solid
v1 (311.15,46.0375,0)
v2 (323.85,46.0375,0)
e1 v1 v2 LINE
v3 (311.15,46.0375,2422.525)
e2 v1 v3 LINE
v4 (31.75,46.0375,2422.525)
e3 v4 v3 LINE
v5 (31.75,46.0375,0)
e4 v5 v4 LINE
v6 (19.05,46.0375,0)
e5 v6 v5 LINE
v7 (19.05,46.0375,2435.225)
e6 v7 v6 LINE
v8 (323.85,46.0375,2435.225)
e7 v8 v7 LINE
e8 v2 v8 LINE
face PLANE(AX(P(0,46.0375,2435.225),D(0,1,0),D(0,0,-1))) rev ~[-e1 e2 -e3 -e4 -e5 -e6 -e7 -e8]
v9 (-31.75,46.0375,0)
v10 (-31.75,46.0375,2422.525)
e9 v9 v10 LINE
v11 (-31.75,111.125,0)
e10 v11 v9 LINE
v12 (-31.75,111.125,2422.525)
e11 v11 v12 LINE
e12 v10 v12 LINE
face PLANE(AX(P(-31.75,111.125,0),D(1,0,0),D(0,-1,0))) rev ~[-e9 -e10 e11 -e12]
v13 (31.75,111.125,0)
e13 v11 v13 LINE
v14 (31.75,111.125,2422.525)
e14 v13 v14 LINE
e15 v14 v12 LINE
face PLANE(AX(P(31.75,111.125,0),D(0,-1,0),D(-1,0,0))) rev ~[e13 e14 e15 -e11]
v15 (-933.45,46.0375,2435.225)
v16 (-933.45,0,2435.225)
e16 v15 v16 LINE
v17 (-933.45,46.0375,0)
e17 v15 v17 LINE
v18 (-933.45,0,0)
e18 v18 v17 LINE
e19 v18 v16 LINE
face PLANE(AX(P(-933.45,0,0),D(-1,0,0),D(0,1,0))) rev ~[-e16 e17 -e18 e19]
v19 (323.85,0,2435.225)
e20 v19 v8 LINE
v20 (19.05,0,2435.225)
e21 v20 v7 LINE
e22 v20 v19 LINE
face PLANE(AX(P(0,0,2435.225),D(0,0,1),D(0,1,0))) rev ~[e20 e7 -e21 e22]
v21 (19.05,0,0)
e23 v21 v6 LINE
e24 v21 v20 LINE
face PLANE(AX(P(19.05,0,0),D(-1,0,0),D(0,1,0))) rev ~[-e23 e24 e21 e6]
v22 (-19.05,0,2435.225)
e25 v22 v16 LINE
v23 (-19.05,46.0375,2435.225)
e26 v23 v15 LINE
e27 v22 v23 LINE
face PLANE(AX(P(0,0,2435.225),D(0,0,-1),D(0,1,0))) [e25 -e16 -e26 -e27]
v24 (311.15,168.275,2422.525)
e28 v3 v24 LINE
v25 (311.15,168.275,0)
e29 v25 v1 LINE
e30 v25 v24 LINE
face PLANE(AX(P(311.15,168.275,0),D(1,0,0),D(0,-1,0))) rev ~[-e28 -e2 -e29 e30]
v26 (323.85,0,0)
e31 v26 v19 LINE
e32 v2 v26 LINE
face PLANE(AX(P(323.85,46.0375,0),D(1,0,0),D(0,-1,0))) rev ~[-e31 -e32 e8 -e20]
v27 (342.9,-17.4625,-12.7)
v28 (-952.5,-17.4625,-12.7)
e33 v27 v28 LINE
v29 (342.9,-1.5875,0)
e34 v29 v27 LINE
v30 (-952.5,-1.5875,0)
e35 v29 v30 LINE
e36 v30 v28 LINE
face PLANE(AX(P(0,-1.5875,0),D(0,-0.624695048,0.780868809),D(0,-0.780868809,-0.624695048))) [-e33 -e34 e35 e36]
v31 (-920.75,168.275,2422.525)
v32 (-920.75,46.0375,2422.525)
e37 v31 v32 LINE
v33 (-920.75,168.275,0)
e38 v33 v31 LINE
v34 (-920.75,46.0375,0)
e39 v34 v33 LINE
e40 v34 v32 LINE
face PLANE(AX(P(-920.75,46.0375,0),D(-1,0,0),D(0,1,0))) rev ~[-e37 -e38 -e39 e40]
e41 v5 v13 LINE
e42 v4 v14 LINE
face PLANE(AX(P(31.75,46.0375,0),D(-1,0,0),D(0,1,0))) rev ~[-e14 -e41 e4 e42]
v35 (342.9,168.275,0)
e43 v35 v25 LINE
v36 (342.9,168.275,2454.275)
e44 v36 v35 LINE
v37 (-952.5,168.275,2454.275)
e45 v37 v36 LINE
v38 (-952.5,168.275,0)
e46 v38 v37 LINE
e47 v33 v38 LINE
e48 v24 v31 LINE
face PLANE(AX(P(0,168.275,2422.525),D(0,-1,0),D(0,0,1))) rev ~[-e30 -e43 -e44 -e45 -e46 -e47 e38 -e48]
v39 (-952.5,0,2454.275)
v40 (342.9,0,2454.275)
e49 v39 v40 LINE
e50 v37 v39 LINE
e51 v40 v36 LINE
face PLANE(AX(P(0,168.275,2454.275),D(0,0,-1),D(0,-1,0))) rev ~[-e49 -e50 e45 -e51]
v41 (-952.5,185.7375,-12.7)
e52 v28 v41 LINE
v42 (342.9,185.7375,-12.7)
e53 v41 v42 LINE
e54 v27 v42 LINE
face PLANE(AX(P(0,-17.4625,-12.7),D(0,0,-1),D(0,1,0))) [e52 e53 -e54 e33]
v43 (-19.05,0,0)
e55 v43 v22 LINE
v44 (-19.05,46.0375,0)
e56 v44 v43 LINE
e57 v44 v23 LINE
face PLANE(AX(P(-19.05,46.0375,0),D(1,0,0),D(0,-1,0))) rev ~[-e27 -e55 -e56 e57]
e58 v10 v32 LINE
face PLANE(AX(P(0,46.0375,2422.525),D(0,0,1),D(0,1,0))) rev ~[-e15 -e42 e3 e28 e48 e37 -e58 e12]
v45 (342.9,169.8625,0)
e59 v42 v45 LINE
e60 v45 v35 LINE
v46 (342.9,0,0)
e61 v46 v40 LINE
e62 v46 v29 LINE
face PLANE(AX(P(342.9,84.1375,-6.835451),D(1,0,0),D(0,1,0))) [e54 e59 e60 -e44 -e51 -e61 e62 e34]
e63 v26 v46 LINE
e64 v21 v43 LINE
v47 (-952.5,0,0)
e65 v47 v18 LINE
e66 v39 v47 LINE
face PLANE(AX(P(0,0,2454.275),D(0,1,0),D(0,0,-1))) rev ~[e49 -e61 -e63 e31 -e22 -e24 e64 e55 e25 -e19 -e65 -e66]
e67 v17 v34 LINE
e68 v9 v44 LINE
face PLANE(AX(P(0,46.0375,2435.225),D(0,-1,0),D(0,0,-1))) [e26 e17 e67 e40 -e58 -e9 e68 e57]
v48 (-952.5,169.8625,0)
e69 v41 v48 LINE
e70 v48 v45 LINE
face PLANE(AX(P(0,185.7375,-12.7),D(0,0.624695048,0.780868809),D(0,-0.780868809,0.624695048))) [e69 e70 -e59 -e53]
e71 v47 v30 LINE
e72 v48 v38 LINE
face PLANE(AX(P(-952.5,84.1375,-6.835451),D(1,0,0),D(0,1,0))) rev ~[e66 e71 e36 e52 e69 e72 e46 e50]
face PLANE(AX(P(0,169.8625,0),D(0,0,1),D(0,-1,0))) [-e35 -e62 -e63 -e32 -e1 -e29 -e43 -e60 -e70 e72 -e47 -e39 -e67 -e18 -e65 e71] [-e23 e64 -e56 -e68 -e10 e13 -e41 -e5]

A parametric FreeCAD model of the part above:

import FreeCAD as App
import Part
import Sketcher

V = App.Vector
Q = App.Units.Quantity

doc = App.newDocument("Part")
params = doc.addObject("Spreadsheet::Sheet", "Params")
for row, (alias, value) in enumerate([
    ("sketch1_width", "0.5 in"),
    ("sketch1_width2", "0.75 in"),
    ("sketch1_height", "6.625 in"),
    ("sketch1_height2", "1.8125 in"),
    ("pad1_length", "96.625 in"),
    ("sketch2_width", "0.5 in"),
    ("sketch2_width2", "1.5 in"),
    ("sketch2_height", "1.8125 in"),
    ("sketch2_height2", "2.5625 in"),
    ("pad2_length", "96.625 in"),
    ("sketch3_width", "0.5 in"),
    ("sketch3_width2", "0.75 in"),
    ("sketch3_height", "1.8125 in"),
    ("sketch3_height2", "6.625 in"),
    ("pad3_length", "96.625 in"),
    ("sketch4_width", "36.25 in"),
    ("pad4_length", "168.276 mm"),
    ("sketch5_height", "0.5 in"),
    ("sketch5_height2", "1.25 in"),
    ("sketch5_width", "6.625 in"),
    ("sketch5_width2", "1.8125 in"),
    ("pad5_length", "37.5 in"),
    ("pad5_length2", "13.5 in"),
    ("sketch6_width", "8 in"),
    ("sketch6_width2", "6.75 in"),
    ("pad6_length", "13.5 in"),
    ("pad6_length2", "37.5 in"),
], start=1):
    params.set(f"A{row}", alias)
    params.set(f"B{row}", "=" + value)
    params.setAlias(f"B{row}", alias)

body = doc.addObject("PartDesign::Body", "Body")

# Sketch on XY plane
sketch1 = doc.addObject("Sketcher::SketchObject", "Sketch")
body.addObject(sketch1)
sketch1.AttachmentSupport = (doc.XY_Plane, [""])
sketch1.MapMode = "FlatFace"
sketch1.addGeometry([
    Part.LineSegment(V(-952, 168, 0), V(-952, 0, 0)),  # 0
    Part.LineSegment(V(-952, 0, 0), V(-933, 0, 0)),  # 1
    Part.LineSegment(V(-933, 0, 0), V(-933, 46, 0)),  # 2
    Part.LineSegment(V(-933, 46, 0), V(-921, 46, 0)),  # 3
    Part.LineSegment(V(-921, 46, 0), V(-921, 168, 0)),  # 4
    Part.LineSegment(V(-921, 168, 0), V(-952, 168, 0)),  # 5
], False)
sketch1.addConstraint([
    Sketcher.Constraint("Coincident", 0, 2, 1, 1),
    Sketcher.Constraint("Coincident", 1, 2, 2, 1),
    Sketcher.Constraint("Coincident", 2, 2, 3, 1),
    Sketcher.Constraint("Coincident", 3, 2, 4, 1),
    Sketcher.Constraint("Coincident", 4, 2, 5, 1),
    Sketcher.Constraint("Coincident", 5, 2, 0, 1),
    Sketcher.Constraint("Vertical", 0),
    Sketcher.Constraint("Horizontal", 1),
    Sketcher.Constraint("Vertical", 2),
    Sketcher.Constraint("Horizontal", 3),
    Sketcher.Constraint("Vertical", 4),
    Sketcher.Constraint("Horizontal", 5),
    Sketcher.Constraint("PointOnObject", 0, 2, -1),
    Sketcher.Constraint("DistanceX", 3, 1, 3, 2, Q("0.5 in")),
    Sketcher.Constraint("DistanceX", 1, 1, 1, 2, Q("0.75 in")),
    Sketcher.Constraint("DistanceX", 0, 2, -1, 1, Q("37.5 in")),
    Sketcher.Constraint("DistanceY", 0, 2, 0, 1, Q("6.625 in")),
    Sketcher.Constraint("DistanceY", 2, 1, 2, 2, Q("1.8125 in")),
])
sketch1.setExpression("Constraints[13]", "Params.sketch1_width")
sketch1.setExpression("Constraints[14]", "Params.sketch1_width2")
sketch1.setExpression("Constraints[16]", "Params.sketch1_height")
sketch1.setExpression("Constraints[17]", "Params.sketch1_height2")
pad1 = doc.addObject("PartDesign::Pad", "Pad")
body.addObject(pad1)
pad1.Profile = sketch1
pad1.setExpression("Length", "Params.pad1_length")
body2 = doc.addObject("PartDesign::Body", "Body001")

# Sketch on XY plane
sketch2 = doc.addObject("Sketcher::SketchObject", "Sketch001")
body2.addObject(sketch2)
sketch2.AttachmentSupport = (doc.getObject("XY_Plane001"), [""])
sketch2.MapMode = "FlatFace"
sketch2.addGeometry([
    Part.LineSegment(V(-32, 46, 0), V(-19, 46, 0)),  # 0
    Part.LineSegment(V(-19, 46, 0), V(-19, 0, 0)),  # 1
    Part.LineSegment(V(-19, 0, 0), V(19, 0, 0)),  # 2
    Part.LineSegment(V(19, 0, 0), V(19, 46, 0)),  # 3
    Part.LineSegment(V(19, 46, 0), V(32, 46, 0)),  # 4
    Part.LineSegment(V(32, 46, 0), V(32, 111, 0)),  # 5
    Part.LineSegment(V(32, 111, 0), V(-32, 111, 0)),  # 6
    Part.LineSegment(V(-32, 111, 0), V(-32, 46, 0)),  # 7
], False)
sketch2.addConstraint([
    Sketcher.Constraint("Coincident", 0, 2, 1, 1),
    Sketcher.Constraint("Coincident", 1, 2, 2, 1),
    Sketcher.Constraint("Coincident", 2, 2, 3, 1),
    Sketcher.Constraint("Coincident", 3, 2, 4, 1),
    Sketcher.Constraint("Coincident", 4, 2, 5, 1),
    Sketcher.Constraint("Coincident", 5, 2, 6, 1),
    Sketcher.Constraint("Coincident", 6, 2, 7, 1),
    Sketcher.Constraint("Coincident", 7, 2, 0, 1),
    Sketcher.Constraint("Horizontal", 0),
    Sketcher.Constraint("Vertical", 1),
    Sketcher.Constraint("Horizontal", 2),
    Sketcher.Constraint("Vertical", 3),
    Sketcher.Constraint("Horizontal", 4),
    Sketcher.Constraint("Vertical", 5),
    Sketcher.Constraint("Horizontal", 6),
    Sketcher.Constraint("Vertical", 7),
    Sketcher.Constraint("Symmetric", 1, 2, 2, 2, -1, 1),
    Sketcher.Constraint("Symmetric", 4, 2, 7, 2, -2),
    Sketcher.Constraint("DistanceX", 0, 1, 0, 2, Q("0.5 in")),
    Sketcher.Constraint("DistanceX", 2, 1, 2, 2, Q("1.5 in")),
    Sketcher.Constraint("DistanceY", 1, 2, 1, 1, Q("1.8125 in")),
    Sketcher.Constraint("DistanceY", 5, 1, 5, 2, Q("2.5625 in")),
])
sketch2.setExpression("Constraints[18]", "Params.sketch2_width")
sketch2.setExpression("Constraints[19]", "Params.sketch2_width2")
sketch2.setExpression("Constraints[20]", "Params.sketch2_height")
sketch2.setExpression("Constraints[21]", "Params.sketch2_height2")
pad2 = doc.addObject("PartDesign::Pad", "Pad001")
body2.addObject(pad2)
pad2.Profile = sketch2
pad2.setExpression("Length", "Params.pad2_length")
body3 = doc.addObject("PartDesign::Body", "Body002")

# Sketch on XY plane
sketch3 = doc.addObject("Sketcher::SketchObject", "Sketch002")
body3.addObject(sketch3)
sketch3.AttachmentSupport = (doc.getObject("XY_Plane002"), [""])
sketch3.MapMode = "FlatFace"
sketch3.addGeometry([
    Part.LineSegment(V(311, 46, 0), V(324, 46, 0)),  # 0
    Part.LineSegment(V(324, 46, 0), V(324, 0, 0)),  # 1
    Part.LineSegment(V(324, 0, 0), V(343, 0, 0)),  # 2
    Part.LineSegment(V(343, 0, 0), V(343, 168, 0)),  # 3
    Part.LineSegment(V(343, 168, 0), V(311, 168, 0)),  # 4
    Part.LineSegment(V(311, 168, 0), V(311, 46, 0)),  # 5
], False)
sketch3.addConstraint([
    Sketcher.Constraint("Coincident", 0, 2, 1, 1),
    Sketcher.Constraint("Coincident", 1, 2, 2, 1),
    Sketcher.Constraint("Coincident", 2, 2, 3, 1),
    Sketcher.Constraint("Coincident", 3, 2, 4, 1),
    Sketcher.Constraint("Coincident", 4, 2, 5, 1),
    Sketcher.Constraint("Coincident", 5, 2, 0, 1),
    Sketcher.Constraint("Horizontal", 0),
    Sketcher.Constraint("Vertical", 1),
    Sketcher.Constraint("Horizontal", 2),
    Sketcher.Constraint("Vertical", 3),
    Sketcher.Constraint("Horizontal", 4),
    Sketcher.Constraint("Vertical", 5),
    Sketcher.Constraint("PointOnObject", 1, 2, -1),
    Sketcher.Constraint("DistanceX", 0, 1, 0, 2, Q("0.5 in")),
    Sketcher.Constraint("DistanceX", 2, 1, 2, 2, Q("0.75 in")),
    Sketcher.Constraint("DistanceX", -1, 1, 2, 2, Q("13.5 in")),
    Sketcher.Constraint("DistanceY", 1, 2, 1, 1, Q("1.8125 in")),
    Sketcher.Constraint("DistanceY", 3, 1, 3, 2, Q("6.625 in")),
])
sketch3.setExpression("Constraints[13]", "Params.sketch3_width")
sketch3.setExpression("Constraints[14]", "Params.sketch3_width2")
sketch3.setExpression("Constraints[16]", "Params.sketch3_height")
sketch3.setExpression("Constraints[17]", "Params.sketch3_height2")
pad3 = doc.addObject("PartDesign::Pad", "Pad002")
body3.addObject(pad3)
pad3.Profile = sketch3
pad3.setExpression("Length", "Params.pad3_length")
body4 = doc.addObject("PartDesign::Body", "Body003")
body4.AllowCompound = True

# Sketch on XZ plane
sketch4 = doc.addObject("Sketcher::SketchObject", "Sketch003")
body4.addObject(sketch4)
sketch4.AttachmentSupport = (doc.getObject("XZ_Plane003"), [""])
sketch4.MapMode = "FlatFace"
sketch4.addGeometry([
    Part.LineSegment(V(-32, 2454, 0), V(-952, 2454, 0)),  # 0
    Part.LineSegment(V(-952, 2454, 0), V(-492, 1994, 0)),  # 1
    Part.LineSegment(V(-492, 1994, 0), V(-32, 2454, 0)),  # 2
    Part.LineSegment(V(343, 2454, 0), V(32, 2454, 0)),  # 3
    Part.LineSegment(V(32, 2454, 0), V(187, 2299, 0)),  # 4
    Part.LineSegment(V(187, 2299, 0), V(343, 2454, 0)),  # 5
], False)
sketch4.addConstraint([
    Sketcher.Constraint("Coincident", 0, 2, 1, 1),
    Sketcher.Constraint("Coincident", 1, 2, 2, 1),
    Sketcher.Constraint("Coincident", 2, 2, 0, 1),
    Sketcher.Constraint("Coincident", 3, 2, 4, 1),
    Sketcher.Constraint("Coincident", 4, 2, 5, 1),
    Sketcher.Constraint("Coincident", 5, 2, 3, 1),
    Sketcher.Constraint("Horizontal", 0),
    Sketcher.Constraint("Horizontal", 3),
    Sketcher.Constraint("Symmetric", 2, 2, 3, 2, -2),
    Sketcher.Constraint("Perpendicular", 1, 2),
    Sketcher.Constraint("Perpendicular", 2, 4),
    Sketcher.Constraint("Perpendicular", 4, 5),
    Sketcher.Constraint("Equal", 1, 2),
    Sketcher.Constraint("DistanceY", 1, 2, 4, 2, Q("12 in")),
    Sketcher.Constraint("DistanceX", 0, 2, 5, 2, Q("51 in")),
    Sketcher.Constraint("DistanceX", 0, 2, 0, 1, Q("36.25 in")),
    Sketcher.Constraint("DistanceY", -1, 1, 1, 2, Q("78.5 in")),
])
sketch4.setExpression("Constraints[15]", "Params.sketch4_width")
pad4 = doc.addObject("PartDesign::Pad", "Pad003")
body4.addObject(pad4)
pad4.Profile = sketch4
pad4.setExpression("Length", "Params.pad4_length")
pad4.Reversed = True
body.AllowCompound = True
doc.recompute()

body5 = doc.addObject("PartDesign::Body", "Body004")
body5.BaseFeature = body4
boolean = doc.addObject("PartDesign::Boolean", "Boolean")
body.addObject(boolean)
boolean.Type = "Cut"
boolean.addObjects([body5])
doc.recompute()

boolean2 = doc.addObject("PartDesign::Boolean", "Boolean001")
body.addObject(boolean2)
boolean2.Type = "Fuse"
boolean2.addObjects([body2])
doc.recompute()

boolean3 = doc.addObject("PartDesign::Boolean", "Boolean002")
body3.addObject(boolean3)
boolean3.Type = "Cut"
boolean3.addObjects([body4])
body.AllowCompound = True
doc.recompute()

boolean4 = doc.addObject("PartDesign::Boolean", "Boolean003")
body.addObject(boolean4)
boolean4.Type = "Fuse"
boolean4.addObjects([body3])

# Sketch on YZ plane
sketch5 = doc.addObject("Sketcher::SketchObject", "Sketch004")
body.addObject(sketch5)
sketch5.AttachmentSupport = (doc.YZ_Plane, [""])
sketch5.MapMode = "FlatFace"
sketch5.addGeometry([
    Part.LineSegment(V(168, 2423, 0), V(168, 2454, 0)),  # 0
    Part.LineSegment(V(168, 2454, 0), V(0, 2454, 0)),  # 1
    Part.LineSegment(V(0, 2454, 0), V(0, 2435, 0)),  # 2
    Part.LineSegment(V(0, 2435, 0), V(46, 2435, 0)),  # 3
    Part.LineSegment(V(46, 2435, 0), V(46, 2423, 0)),  # 4
    Part.LineSegment(V(46, 2423, 0), V(168, 2423, 0)),  # 5
], False)
sketch5.addConstraint([
    Sketcher.Constraint("Coincident", 0, 2, 1, 1),
    Sketcher.Constraint("Coincident", 1, 2, 2, 1),
    Sketcher.Constraint("Coincident", 2, 2, 3, 1),
    Sketcher.Constraint("Coincident", 3, 2, 4, 1),
    Sketcher.Constraint("Coincident", 4, 2, 5, 1),
    Sketcher.Constraint("Coincident", 5, 2, 0, 1),
    Sketcher.Constraint("Vertical", 0),
    Sketcher.Constraint("Horizontal", 1),
    Sketcher.Constraint("Vertical", 2),
    Sketcher.Constraint("Horizontal", 3),
    Sketcher.Constraint("Vertical", 4),
    Sketcher.Constraint("Horizontal", 5),
    Sketcher.Constraint("PointOnObject", 1, 2, -2),
    Sketcher.Constraint("DistanceY", 4, 2, 4, 1, Q("0.5 in")),
    Sketcher.Constraint("DistanceY", 0, 1, 0, 2, Q("1.25 in")),
    Sketcher.Constraint("DistanceX", 1, 2, 1, 1, Q("6.625 in")),
    Sketcher.Constraint("DistanceX", 3, 1, 3, 2, Q("1.8125 in")),
    Sketcher.Constraint("DistanceY", -1, 1, 0, 2, Q("96.625 in")),
])
sketch5.setExpression("Constraints[13]", "Params.sketch5_height")
sketch5.setExpression("Constraints[14]", "Params.sketch5_height2")
sketch5.setExpression("Constraints[15]", "Params.sketch5_width")
sketch5.setExpression("Constraints[16]", "Params.sketch5_width2")
pad5 = doc.addObject("PartDesign::Pad", "Pad004")
body.addObject(pad5)
pad5.Profile = sketch5
pad5.Type = "TwoLengths"
pad5.setExpression("Length", "Params.pad5_length")
pad5.setExpression("Length2", "Params.pad5_length2")
pad5.Reversed = True

# Sketch on YZ plane
sketch6 = doc.addObject("Sketcher::SketchObject", "Sketch005")
body.addObject(sketch6)
sketch6.AttachmentSupport = (doc.YZ_Plane, [""])
sketch6.MapMode = "FlatFace"
sketch6.addGeometry([
    Part.LineSegment(V(-17, -13, 0), V(186, -13, 0)),
    Part.LineSegment(V(186, -13, 0), V(170, 0, 0)),
    Part.LineSegment(V(170, 0, 0), V(-2, 0, 0)),
    Part.LineSegment(V(-2, 0, 0), V(-17, -13, 0)),
], False)
sketch6.addConstraint([
    Sketcher.Constraint("Coincident", 0, 2, 1, 1),
    Sketcher.Constraint("Coincident", 1, 2, 2, 1),
    Sketcher.Constraint("Coincident", 2, 2, 3, 1),
    Sketcher.Constraint("Coincident", 3, 2, 0, 1),
    Sketcher.Constraint("Horizontal", 0),
    Sketcher.Constraint("Horizontal", 2),
    Sketcher.Constraint("PointOnObject", 1, 2, -1),
    Sketcher.Constraint("Equal", 1, 3),
    Sketcher.Constraint("DistanceX", 0, 1, 0, 2, Q("8 in")),
    Sketcher.Constraint("DistanceX", 2, 2, 2, 1, Q("6.75 in")),
    Sketcher.Constraint("DistanceY", 0, 2, -1, 1, Q("0.5 in")),
    Sketcher.Constraint("DistanceX", -1, 1, 0, 2, Q("7.3125 in")),
])
sketch6.setExpression("Constraints[8]", "Params.sketch6_width")
sketch6.setExpression("Constraints[9]", "Params.sketch6_width2")
pad6 = doc.addObject("PartDesign::Pad", "Pad005")
body.addObject(pad6)
pad6.Profile = sketch6
pad6.Type = "TwoLengths"
pad6.setExpression("Length", "Params.pad6_length")
pad6.setExpression("Length2", "Params.pad6_length2")

doc.recompute()
